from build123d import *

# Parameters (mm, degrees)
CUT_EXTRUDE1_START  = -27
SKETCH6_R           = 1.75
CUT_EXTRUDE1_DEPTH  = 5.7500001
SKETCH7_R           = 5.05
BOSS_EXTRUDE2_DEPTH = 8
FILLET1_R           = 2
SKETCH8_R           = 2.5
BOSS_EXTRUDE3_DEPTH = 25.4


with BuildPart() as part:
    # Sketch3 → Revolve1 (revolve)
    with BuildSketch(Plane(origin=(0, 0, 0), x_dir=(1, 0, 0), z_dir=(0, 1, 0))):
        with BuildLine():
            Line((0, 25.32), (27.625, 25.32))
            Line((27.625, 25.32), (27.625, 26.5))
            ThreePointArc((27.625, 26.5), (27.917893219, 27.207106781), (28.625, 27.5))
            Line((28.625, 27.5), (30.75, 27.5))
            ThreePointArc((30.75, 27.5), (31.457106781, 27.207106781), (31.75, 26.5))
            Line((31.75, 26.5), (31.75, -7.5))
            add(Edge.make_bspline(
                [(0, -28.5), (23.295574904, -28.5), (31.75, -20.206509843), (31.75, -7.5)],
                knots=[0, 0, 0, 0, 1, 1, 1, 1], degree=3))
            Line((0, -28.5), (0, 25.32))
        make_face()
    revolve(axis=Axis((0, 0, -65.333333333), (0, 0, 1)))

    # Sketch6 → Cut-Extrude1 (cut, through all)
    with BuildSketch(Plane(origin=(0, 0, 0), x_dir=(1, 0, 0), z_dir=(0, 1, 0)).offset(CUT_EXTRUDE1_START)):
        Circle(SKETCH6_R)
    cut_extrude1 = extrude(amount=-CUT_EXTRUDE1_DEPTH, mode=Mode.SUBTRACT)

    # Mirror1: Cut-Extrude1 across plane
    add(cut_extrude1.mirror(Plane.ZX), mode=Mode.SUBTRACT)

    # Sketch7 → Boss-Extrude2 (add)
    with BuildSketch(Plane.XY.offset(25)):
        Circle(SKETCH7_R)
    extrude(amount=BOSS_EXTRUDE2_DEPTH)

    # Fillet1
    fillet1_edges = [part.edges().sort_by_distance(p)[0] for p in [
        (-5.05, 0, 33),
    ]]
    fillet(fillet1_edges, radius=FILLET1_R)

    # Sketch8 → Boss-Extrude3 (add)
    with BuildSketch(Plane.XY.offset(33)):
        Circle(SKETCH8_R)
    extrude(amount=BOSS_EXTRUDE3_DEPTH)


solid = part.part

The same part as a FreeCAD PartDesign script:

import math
import FreeCAD as App
import Part
import Sketcher
Q = App.Units.Quantity


def edges_at(feature, points):
    """Names of the edges that pass closest to the given points."""
    edges = feature.Shape.Edges
    near = lambda p: min(range(len(edges)), key=lambda i: edges[i].distToShape(Part.Vertex(*p))[0])
    return sorted({f"Edge{near(p) + 1}" for p in points})

doc = App.newDocument("Part")
params = doc.addObject("Spreadsheet::Sheet", "Params")
for row, (alias, value) in enumerate([
    ("sketch1_radius", "1 mm"),
    ("sketch1_height", "34 mm"),
    ("sketch1_height2", "53.82 mm"),
    ("revolution_angle", "360 deg"),
    ("sketch2_diameter", "3.5 mm"),
    ("sketch3_diameter", "10.1 mm"),
    ("pad1_length", "8 mm"),
    ("fillet_radius", "2 mm"),
    ("sketch4_diameter", "5 mm"),
    ("pad2_length", "25.4 mm"),
], start=1):
    params.set(f"A{row}", alias)
    params.set(f"B{row}", "=" + value)
    params.setAlias(f"B{row}", alias)

body = doc.addObject("PartDesign::Body", "Body")

# Sketch on XZ plane
sketch1 = body.newObject("Sketcher::SketchObject", "Sketch")
sketch1.AttachmentSupport = (doc.getObject("XZ_Plane"), [""])
sketch1.MapMode = "FlatFace"
sketch1.addGeometry(Part.LineSegment(App.Vector(27.625, -25.32, 0), App.Vector(0, -25.32, 0)), False)
sketch1.addGeometry(Part.LineSegment(App.Vector(0, -25.32, 0), App.Vector(0, 28.5, 0)), False)
sketch1.addGeometry(Part.BSplineCurve([App.Vector(0, 28.5, 0), App.Vector(23.295575, 28.5, 0), App.Vector(31.75, 20.20651, 0), App.Vector(31.75, 7.5, 0)], [4, 4], [0, 1], False, 3, [1, 1, 1, 1], False), False)
sketch1.addGeometry(Part.LineSegment(App.Vector(31.75, 7.5, 0), App.Vector(31.75, -26.5, 0)), False)
sketch1.addGeometry(Part.ArcOfCircle(Part.Circle(App.Vector(30.75, -26.5, 0), App.Vector(0, 0, 1), 1), math.radians(-90), math.radians(0)), False)
sketch1.addGeometry(Part.LineSegment(App.Vector(30.75, -27.5, 0), App.Vector(28.625, -27.5, 0)), False)
sketch1.addGeometry(Part.ArcOfCircle(Part.Circle(App.Vector(28.625, -26.5, 0), App.Vector(0, 0, 1), 1), math.radians(-180), math.radians(-90)), False)
sketch1.addGeometry(Part.LineSegment(App.Vector(27.625, -26.5, 0), App.Vector(27.625, -25.32, 0)), False)
sketch1.addConstraint(Sketcher.Constraint("Block", 2))
sketch1.addConstraint(Sketcher.Constraint("Coincident", 0, 2, 1, 1))
sketch1.addConstraint(Sketcher.Constraint("Coincident", 1, 2, 2, 1))
sketch1.addConstraint(Sketcher.Constraint("Coincident", 2, 2, 3, 1))
sketch1.addConstraint(Sketcher.Constraint("Tangent", 3, 2, 4, 2))
sketch1.addConstraint(Sketcher.Constraint("Tangent", 4, 1, 5, 1))
sketch1.addConstraint(Sketcher.Constraint("Tangent", 5, 2, 6, 2))
sketch1.addConstraint(Sketcher.Constraint("Tangent", 6, 1, 7, 1))
sketch1.addConstraint(Sketcher.Constraint("Coincident", 7, 2, 0, 1))
sketch1.addConstraint(Sketcher.Constraint("Horizontal", 0))
sketch1.addConstraint(Sketcher.Constraint("Vertical", 1))
sketch1.addConstraint(Sketcher.Constraint("Vertical", 3))
sketch1.addConstraint(Sketcher.Constraint("Horizontal", 5))
sketch1.addConstraint(Sketcher.Constraint("Vertical", 7))
sketch1.addConstraint(Sketcher.Constraint("Equal", 4, 6))
sketch1.addConstraint(Sketcher.Constraint("Radius", 4, Q("1 mm")))
sketch1.addConstraint(Sketcher.Constraint("DistanceY", 3, 2, 3, 1, Q("34 mm")))
sketch1.addConstraint(Sketcher.Constraint("DistanceY", 1, 1, 1, 2, Q("53.82 mm")))
sketch1.addConstraint(Sketcher.Constraint("DistanceX", 0, 2, 0, 1, Q("27.625 mm")))
sketch1.setExpression("Constraints[15]", "Params.sketch1_radius")
sketch1.setExpression("Constraints[16]", "Params.sketch1_height")
sketch1.setExpression("Constraints[17]", "Params.sketch1_height2")
revolution = body.newObject("PartDesign::Revolution", "Revolution")
revolution.Profile = sketch1
revolution.ReferenceAxis = (sketch1, ["V_Axis"])
revolution.setExpression("Angle", "Params.revolution_angle")

# Sketch on XZ plane
sketch2 = body.newObject("Sketcher::SketchObject", "Sketch001")
sketch2.AttachmentSupport = (doc.getObject("XZ_Plane"), [""])
sketch2.MapMode = "FlatFace"
sketch2.AttachmentOffset = App.Placement(App.Vector(0, 0, 27), App.Rotation())
sketch2.addGeometry(Part.Circle(App.Vector(0, 0, 0), App.Vector(0, 0, 1), 1.8), False)
sketch2.addConstraint(Sketcher.Constraint("Coincident", 0, 3, -1, 1))
sketch2.addConstraint(Sketcher.Constraint("Diameter", 0, Q("3.5 mm")))
sketch2.setExpression("Constraints[1]", "Params.sketch2_diameter")
pocket1 = body.newObject("PartDesign::Pocket", "Pocket")
pocket1.Profile = sketch2
pocket1.Type = "ThroughAll"
pocket1.Reversed = True
doc.recompute()

mirrored = body.newObject("PartDesign::Mirrored", "Mirrored")
mirrored.Originals = [pocket1]
mirrored.MirrorPlane = (doc.getObject("XZ_Plane"), [""])
body.Tip = mirrored

# Sketch on XY plane
sketch3 = body.newObject("Sketcher::SketchObject", "Sketch002")
sketch3.AttachmentSupport = (doc.getObject("XY_Plane"), [""])
sketch3.MapMode = "FlatFace"
sketch3.AttachmentOffset = App.Placement(App.Vector(0, 0, 25), App.Rotation())
sketch3.addGeometry(Part.Circle(App.Vector(0, 0, 0), App.Vector(0, 0, 1), 5), False)
sketch3.addConstraint(Sketcher.Constraint("Coincident", 0, 3, -1, 1))
sketch3.addConstraint(Sketcher.Constraint("Diameter", 0, Q("10.1 mm")))
sketch3.setExpression("Constraints[1]", "Params.sketch3_diameter")
pad1 = body.newObject("PartDesign::Pad", "Pad")
pad1.Profile = sketch3
pad1.setExpression("Length", "Params.pad1_length")
doc.recompute()

fillet = body.newObject("PartDesign::Fillet", "Fillet")
fillet.Base = (pad1, edges_at(pad1, [(-5.05, 0, 33)]))
fillet.setExpression("Radius", "Params.fillet_radius")

# Sketch on XY plane
sketch4 = body.newObject("Sketcher::SketchObject", "Sketch003")
sketch4.AttachmentSupport = (doc.getObject("XY_Plane"), [""])
sketch4.MapMode = "FlatFace"
sketch4.AttachmentOffset = App.Placement(App.Vector(0, 0, 33), App.Rotation())
sketch4.addGeometry(Part.Circle(App.Vector(0, 0, 0), App.Vector(0, 0, 1), 2.5), False)
sketch4.addConstraint(Sketcher.Constraint("Coincident", 0, 3, -1, 1))
sketch4.addConstraint(Sketcher.Constraint("Diameter", 0, Q("5 mm")))
sketch4.setExpression("Constraints[1]", "Params.sketch4_diameter")
pad2 = body.newObject("PartDesign::Pad", "Pad001")
pad2.Profile = sketch4
pad2.setExpression("Length", "Params.pad2_length")

doc.recompute()
